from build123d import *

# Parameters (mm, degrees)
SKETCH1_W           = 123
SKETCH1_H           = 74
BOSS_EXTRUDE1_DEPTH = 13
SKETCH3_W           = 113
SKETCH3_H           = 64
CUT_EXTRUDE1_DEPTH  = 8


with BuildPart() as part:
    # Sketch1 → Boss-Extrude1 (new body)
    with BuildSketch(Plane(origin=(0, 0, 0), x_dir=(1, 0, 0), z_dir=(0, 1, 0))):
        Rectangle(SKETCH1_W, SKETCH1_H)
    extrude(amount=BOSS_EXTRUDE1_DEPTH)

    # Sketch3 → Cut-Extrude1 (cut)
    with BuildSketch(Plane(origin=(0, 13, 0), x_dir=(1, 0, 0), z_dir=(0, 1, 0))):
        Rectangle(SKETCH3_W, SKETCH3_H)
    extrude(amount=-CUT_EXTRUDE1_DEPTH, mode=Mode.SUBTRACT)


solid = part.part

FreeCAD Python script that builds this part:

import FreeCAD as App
import Part
import Sketcher

V = App.Vector
Q = App.Units.Quantity

doc = App.newDocument("Part")
body = doc.addObject("PartDesign::Body", "Body")

# Sketch on XZ plane
sketch1 = doc.addObject("Sketcher::SketchObject", "Sketch")
body.addObject(sketch1)
sketch1.AttachmentSupport = (doc.XZ_Plane, [""])
sketch1.MapMode = "FlatFace"
sketch1.addGeometry([
    Part.LineSegment(V(-62, -37, 0), V(-62, 37, 0)),
    Part.LineSegment(V(-62, 37, 0), V(62, 37, 0)),
    Part.LineSegment(V(62, 37, 0), V(62, -37, 0)),
    Part.LineSegment(V(62, -37, 0), V(-62, -37, 0)),
], False)
sketch1.addConstraint([
    Sketcher.Constraint("Coincident", 0, 2, 1, 1),
    Sketcher.Constraint("Coincident", 1, 2, 2, 1),
    Sketcher.Constraint("Coincident", 2, 2, 3, 1),
    Sketcher.Constraint("Coincident", 3, 2, 0, 1),
    Sketcher.Constraint("Vertical", 0),
    Sketcher.Constraint("Horizontal", 1),
    Sketcher.Constraint("Vertical", 2),
    Sketcher.Constraint("Horizontal", 3),
    Sketcher.Constraint("Symmetric", 0, 2, 2, 2, -1, 1),
    Sketcher.Constraint("DistanceX", 1, 1, 1, 2, Q("123 mm")),
    Sketcher.Constraint("DistanceY", 0, 1, 0, 2, Q("74 mm")),
])
pad1 = doc.addObject("PartDesign::Pad", "Pad")
body.addObject(pad1)
pad1.Profile = sketch1
pad1.Length = 13
pad1.Reversed = True

# Sketch on XZ plane
sketch2 = doc.addObject("Sketcher::SketchObject", "Sketch001")
body.addObject(sketch2)
sketch2.AttachmentSupport = (doc.XZ_Plane, [""])
sketch2.MapMode = "FlatFace"
sketch2.AttachmentOffset = App.Placement(V(0, 0, -13), App.Rotation())
sketch2.addGeometry([
    Part.LineSegment(V(-56, -32, 0), V(-56, 32, 0)),
    Part.LineSegment(V(-56, 32, 0), V(56, 32, 0)),
    Part.LineSegment(V(56, 32, 0), V(56, -32, 0)),
    Part.LineSegment(V(56, -32, 0), V(-56, -32, 0)),
], False)
sketch2.addConstraint([
    Sketcher.Constraint("Coincident", 0, 2, 1, 1),
    Sketcher.Constraint("Coincident", 1, 2, 2, 1),
    Sketcher.Constraint("Coincident", 2, 2, 3, 1),
    Sketcher.Constraint("Coincident", 3, 2, 0, 1),
    Sketcher.Constraint("Vertical", 0),
    Sketcher.Constraint("Horizontal", 1),
    Sketcher.Constraint("Vertical", 2),
    Sketcher.Constraint("Horizontal", 3),
    Sketcher.Constraint("Symmetric", 0, 2, 2, 2, -1, 1),
    Sketcher.Constraint("DistanceX", 1, 1, 1, 2, Q("113 mm")),
    Sketcher.Constraint("DistanceY", 0, 1, 0, 2, Q("64 mm")),
])
pocket1 = doc.addObject("PartDesign::Pocket", "Pocket")
body.addObject(pocket1)
pocket1.Profile = sketch2
pocket1.Length = 8
pocket1.Reversed = True

doc.recompute()
